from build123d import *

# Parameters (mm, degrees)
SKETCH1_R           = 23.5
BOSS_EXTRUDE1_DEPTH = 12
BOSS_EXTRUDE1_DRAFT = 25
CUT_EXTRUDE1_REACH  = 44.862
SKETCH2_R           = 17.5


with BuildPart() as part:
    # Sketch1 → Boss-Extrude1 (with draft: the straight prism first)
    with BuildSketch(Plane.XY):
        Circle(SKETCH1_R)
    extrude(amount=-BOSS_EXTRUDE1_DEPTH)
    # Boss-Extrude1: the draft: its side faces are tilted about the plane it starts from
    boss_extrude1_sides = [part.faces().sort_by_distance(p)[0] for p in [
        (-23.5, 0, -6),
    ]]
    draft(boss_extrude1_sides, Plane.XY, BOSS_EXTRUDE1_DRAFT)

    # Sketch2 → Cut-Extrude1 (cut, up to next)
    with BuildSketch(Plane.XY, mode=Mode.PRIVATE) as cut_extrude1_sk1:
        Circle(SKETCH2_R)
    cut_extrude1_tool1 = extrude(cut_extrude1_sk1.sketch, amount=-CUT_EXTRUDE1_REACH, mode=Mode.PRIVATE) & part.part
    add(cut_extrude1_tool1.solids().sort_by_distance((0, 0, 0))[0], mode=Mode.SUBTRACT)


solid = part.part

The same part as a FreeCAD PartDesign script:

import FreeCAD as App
import Part
import Sketcher
from FreeCAD import Vector


def faces_at(feature, points):
    """Names of the faces that lie closest to the given points."""
    faces = feature.Shape.Faces
    near = lambda p: min(range(len(faces)), key=lambda i: faces[i].distToShape(Part.Vertex(*p))[0])
    return sorted({f"Face{near(p) + 1}" for p in points})

doc = App.newDocument("Part")
body = doc.addObject("PartDesign::Body", "Body")

sketch1 = body.newObject("Sketcher::SketchObject", "Sketch")
sketch1.AttachmentSupport = (doc.getObject("XY_Plane"), [""])
sketch1.MapMode = "FlatFace"
sketch1.addGeometry(Part.Circle(Vector(0, 0, 0), Vector(0, 0, 1), 24), False)
sketch1.addConstraint(Sketcher.Constraint("Coincident", 0, 3, -1, 1))
sketch1.addConstraint(Sketcher.Constraint("Diameter", 0, 47.0))
pad1 = body.newObject("PartDesign::Pad", "Pad")
pad1.Profile = sketch1
pad1.Length = 12
pad1.Reversed = True
doc.recompute()

draft = body.newObject("PartDesign::Draft", "Draft")
draft.Base = (pad1, faces_at(pad1, [(-23.5, 0, -6)]))
draft.NeutralPlane = (doc.getObject("XY_Plane"), [""])
draft.Angle = 25
draft.Reversed = False

sketch2 = body.newObject("Sketcher::SketchObject", "Sketch001")
sketch2.AttachmentSupport = (doc.getObject("XY_Plane"), [""])
sketch2.MapMode = "FlatFace"
sketch2.addGeometry(Part.Circle(Vector(0, 0, 0), Vector(0, 0, 1), 18), False)
sketch2.addConstraint(Sketcher.Constraint("Coincident", 0, 3, -1, 1))
sketch2.addConstraint(Sketcher.Constraint("Diameter", 0, 35.0))
pocket1 = body.newObject("PartDesign::Pocket", "Pocket")
pocket1.Profile = sketch2
pocket1.Type = "UpToFirst"

doc.recompute()
